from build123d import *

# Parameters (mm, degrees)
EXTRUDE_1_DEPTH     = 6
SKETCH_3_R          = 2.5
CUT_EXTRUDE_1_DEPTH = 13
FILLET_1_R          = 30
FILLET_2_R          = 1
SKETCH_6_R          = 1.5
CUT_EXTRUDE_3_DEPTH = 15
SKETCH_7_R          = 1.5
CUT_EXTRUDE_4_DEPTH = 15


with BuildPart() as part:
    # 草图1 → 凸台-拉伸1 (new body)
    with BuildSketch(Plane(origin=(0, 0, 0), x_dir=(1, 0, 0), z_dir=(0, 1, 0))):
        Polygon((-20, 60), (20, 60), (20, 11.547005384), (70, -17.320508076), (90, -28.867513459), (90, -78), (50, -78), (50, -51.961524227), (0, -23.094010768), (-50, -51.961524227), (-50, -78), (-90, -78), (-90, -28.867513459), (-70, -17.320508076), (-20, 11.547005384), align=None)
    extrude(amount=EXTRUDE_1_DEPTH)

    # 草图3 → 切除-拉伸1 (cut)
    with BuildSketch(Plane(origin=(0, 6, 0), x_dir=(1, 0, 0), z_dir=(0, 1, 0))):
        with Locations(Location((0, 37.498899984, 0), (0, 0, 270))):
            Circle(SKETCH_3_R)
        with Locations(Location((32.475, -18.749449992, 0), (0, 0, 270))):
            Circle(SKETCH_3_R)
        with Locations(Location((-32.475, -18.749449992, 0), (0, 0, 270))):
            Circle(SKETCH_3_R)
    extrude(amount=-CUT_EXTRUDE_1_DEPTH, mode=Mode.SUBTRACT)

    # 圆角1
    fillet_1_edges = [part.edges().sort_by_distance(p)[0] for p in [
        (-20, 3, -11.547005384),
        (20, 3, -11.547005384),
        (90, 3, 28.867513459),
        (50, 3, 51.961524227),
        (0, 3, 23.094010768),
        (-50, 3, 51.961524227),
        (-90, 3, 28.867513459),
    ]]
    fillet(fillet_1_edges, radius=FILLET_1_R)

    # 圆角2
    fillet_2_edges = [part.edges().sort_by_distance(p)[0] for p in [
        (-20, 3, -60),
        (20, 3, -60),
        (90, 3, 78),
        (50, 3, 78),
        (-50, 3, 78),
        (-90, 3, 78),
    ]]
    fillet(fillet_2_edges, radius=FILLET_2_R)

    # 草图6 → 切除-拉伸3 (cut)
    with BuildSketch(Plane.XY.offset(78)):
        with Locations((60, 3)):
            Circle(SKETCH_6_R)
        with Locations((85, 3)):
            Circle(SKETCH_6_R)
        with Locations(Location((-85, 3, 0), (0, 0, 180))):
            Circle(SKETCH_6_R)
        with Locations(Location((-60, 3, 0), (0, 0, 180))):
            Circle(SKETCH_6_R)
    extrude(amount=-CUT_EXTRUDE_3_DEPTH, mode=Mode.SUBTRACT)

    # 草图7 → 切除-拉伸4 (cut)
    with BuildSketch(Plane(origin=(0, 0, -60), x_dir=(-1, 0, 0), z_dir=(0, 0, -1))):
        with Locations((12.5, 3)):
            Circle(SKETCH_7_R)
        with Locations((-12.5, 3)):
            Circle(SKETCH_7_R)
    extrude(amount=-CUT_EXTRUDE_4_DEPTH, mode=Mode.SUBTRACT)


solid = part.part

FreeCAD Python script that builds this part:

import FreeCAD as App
import Part
import Sketcher

V = App.Vector
Q = App.Units.Quantity


def edges_at(feature, points):
    """Names of the edges that pass closest to the given points."""
    edges = feature.Shape.Edges
    near = lambda p: min(range(len(edges)), key=lambda i: edges[i].distToShape(Part.Vertex(*p))[0])
    return sorted({f"Edge{near(p) + 1}" for p in points})


def add_polygon(sketch, points):
    """Adds a closed chain of lines whose ends are joined by coincident constraints."""
    first, n = sketch.GeometryCount, len(points)
    for a, b in zip(points, points[1:] + points[:1]):
        sketch.addGeometry(Part.LineSegment(App.Vector(*a, 0), App.Vector(*b, 0)), False)
    for i in range(n):
        sketch.addConstraint(Sketcher.Constraint("Coincident", first + i, 2, first + (i + 1) % n, 1))

doc = App.newDocument("Part")
body = doc.addObject("PartDesign::Body", "Body")

# Sketch on XZ plane
sketch1 = doc.addObject("Sketcher::SketchObject", "Sketch")
body.addObject(sketch1)
sketch1.AttachmentSupport = (doc.XZ_Plane, [""])
sketch1.MapMode = "FlatFace"
add_polygon(sketch1, [(20, -60), (-20, -60), (-20, -11.547005), (-70, 17.320508), (-90, 28.867513), (-90, 78), (-50, 78), (-50, 51.961524), (0, 23.094011), (50, 51.961524), (50, 78), (90, 78), (90, 28.867513), (70, 17.320508), (20, -11.547005)])  # lines 0-14
sketch1.addConstraint([
    Sketcher.Constraint("Horizontal", 0),
    Sketcher.Constraint("Vertical", 1),
    Sketcher.Constraint("Vertical", 4),
    Sketcher.Constraint("Horizontal", 5),
    Sketcher.Constraint("Vertical", 6),
    Sketcher.Constraint("Vertical", 9),
    Sketcher.Constraint("Horizontal", 10),
    Sketcher.Constraint("Vertical", 11),
    Sketcher.Constraint("Vertical", 14),
    Sketcher.Constraint("Symmetric", 6, 2, 8, 2, -2),
    Sketcher.Constraint("Symmetric", 4, 2, 10, 2, -2),
    Sketcher.Constraint("Symmetric", 2, 2, 12, 2, -2),
    Sketcher.Constraint("Symmetric", 1, 2, 13, 2, -2),
    Sketcher.Constraint("PointOnObject", 7, 2, -2),
    Sketcher.Constraint("Parallel", 2, 3),
    Sketcher.Constraint("Parallel", 3, 7),
    Sketcher.Constraint("Parallel", 8, 12),
    Sketcher.Constraint("Equal", 0, 5),
    Sketcher.Constraint("Equal", 2, 7),
    Sketcher.Constraint("DistanceX", 0, 2, 0, 1, Q("40 mm")),
    Sketcher.Constraint("Angle", 2, Q("150 deg")),
    Sketcher.Constraint("DistanceY", 0, 2, -1, 1, Q("60 mm")),
    Sketcher.Constraint("DistanceX", 2, 2, -1, 1, Q("70 mm")),
    Sketcher.Constraint("DistanceY", -1, 1, 4, 2, Q("78 mm")),
    Sketcher.Constraint("DistanceY", 1, 1, 1, 2, Q("48.452995 mm")),
    Sketcher.Constraint("DistanceY", 6, 2, 6, 1, Q("26.038476 mm")),
])
pad1 = doc.addObject("PartDesign::Pad", "Pad")
body.addObject(pad1)
pad1.Profile = sketch1
pad1.Length = 6
pad1.Reversed = True

# Sketch on XZ plane
sketch2 = doc.addObject("Sketcher::SketchObject", "Sketch001")
body.addObject(sketch2)
sketch2.AttachmentSupport = (doc.XZ_Plane, [""])
sketch2.MapMode = "FlatFace"
sketch2.AttachmentOffset = App.Placement(V(0, 0, -6), App.Rotation())
sketch2.addGeometry([
    Part.Circle(V(0, -37.4989, 0), V(0, 0, 1), 2.5),
    Part.Circle(V(32.475, 18.74945, 0), V(0, 0, 1), 2.5),
    Part.Circle(V(-32.475, 18.74945, 0), V(0, 0, 1), 2.5),
], False)
sketch2.addConstraint([
    Sketcher.Constraint("Equal", 0, 1),
    Sketcher.Constraint("Equal", 1, 2),
    Sketcher.Constraint("Symmetric", 1, 3, 2, 3, -2),
    Sketcher.Constraint("PointOnObject", 0, 3, -2),
    Sketcher.Constraint("Diameter", 0, Q("5 mm")),
    Sketcher.Constraint("DistanceX", 2, 3, 1, 3, Q("64.95 mm")),
    Sketcher.Constraint("DistanceY", 0, 3, -1, 1, Q("37.4989 mm")),
    Sketcher.Constraint("DistanceY", -1, 1, 1, 3, Q("18.74945 mm")),
])
pocket1 = doc.addObject("PartDesign::Pocket", "Pocket")
body.addObject(pocket1)
pocket1.Profile = sketch2
pocket1.Length = 13
pocket1.Reversed = True
doc.recompute()

fillet = doc.addObject("PartDesign::Fillet", "Fillet")
body.addObject(fillet)
fillet.Base = (pocket1, edges_at(pocket1, [
    (-20, 3, -11.547),
    (20, 3, -11.547),
    (90, 3, 28.868),
    (50, 3, 51.962),
    (0, 3, 23.094),
    (-50, 3, 51.962),
    (-90, 3, 28.868),
]))
fillet.Radius = 30
doc.recompute()

fillet2 = doc.addObject("PartDesign::Fillet", "Fillet001")
body.addObject(fillet2)
fillet2.Base = (fillet, edges_at(fillet, [
    (-20, 3, -60),
    (20, 3, -60),
    (90, 3, 78),
    (50, 3, 78),
    (-50, 3, 78),
    (-90, 3, 78),
]))
fillet2.Radius = 1

# Sketch on XY plane
sketch3 = doc.addObject("Sketcher::SketchObject", "Sketch002")
body.addObject(sketch3)
sketch3.AttachmentSupport = (doc.XY_Plane, [""])
sketch3.MapMode = "FlatFace"
sketch3.AttachmentOffset = App.Placement(V(0, 0, 78), App.Rotation())
sketch3.addGeometry([
    Part.Circle(V(60, 3, 0), V(0, 0, 1), 1.5),
    Part.Circle(V(85, 3, 0), V(0, 0, 1), 1.5),
    Part.Circle(V(-85, 3, 0), V(0, 0, 1), 1.5),
    Part.Circle(V(-60, 3, 0), V(0, 0, 1), 1.5),
], False)
sketch3.addConstraint([
    Sketcher.Constraint("Equal", 0, 1),
    Sketcher.Constraint("Equal", 1, 2),
    Sketcher.Constraint("Equal", 2, 3),
    Sketcher.Constraint("Symmetric", 1, 3, 2, 3, -2),
    Sketcher.Constraint("Symmetric", 0, 3, 3, 3, -2),
    Sketcher.Constraint("Horizontal", 0, 3, 1, 3),
    Sketcher.Constraint("Diameter", 0, Q("3 mm")),
    Sketcher.Constraint("DistanceX", -1, 1, 0, 3, Q("60 mm")),
    Sketcher.Constraint("DistanceY", -1, 1, 0, 3, Q("3 mm")),
    Sketcher.Constraint("DistanceX", -1, 1, 1, 3, Q("85 mm")),
])
pocket2 = doc.addObject("PartDesign::Pocket", "Pocket001")
body.addObject(pocket2)
pocket2.Profile = sketch3
pocket2.Length = 15

# Sketch on XY plane
sketch4 = doc.addObject("Sketcher::SketchObject", "Sketch003")
body.addObject(sketch4)
sketch4.AttachmentSupport = (doc.XY_Plane, [""])
sketch4.MapMode = "FlatFace"
sketch4.AttachmentOffset = App.Placement(V(0, 0, -60), App.Rotation())
sketch4.addGeometry([
    Part.Circle(V(-12.5, 3, 0), V(0, 0, 1), 1.5),
    Part.Circle(V(12.5, 3, 0), V(0, 0, 1), 1.5),
], False)
sketch4.addConstraint([
    Sketcher.Constraint("Equal", 0, 1),
    Sketcher.Constraint("Symmetric", 0, 3, 1, 3, -2),
    Sketcher.Constraint("Diameter", 0, Q("3 mm")),
    Sketcher.Constraint("DistanceY", -1, 1, 0, 3, Q("3 mm")),
    Sketcher.Constraint("DistanceX", 0, 3, 1, 3, Q("25 mm")),
])
pocket3 = doc.addObject("PartDesign::Pocket", "Pocket002")
body.addObject(pocket3)
pocket3.Profile = sketch4
pocket3.Length = 15
pocket3.Reversed = True

doc.recompute()
